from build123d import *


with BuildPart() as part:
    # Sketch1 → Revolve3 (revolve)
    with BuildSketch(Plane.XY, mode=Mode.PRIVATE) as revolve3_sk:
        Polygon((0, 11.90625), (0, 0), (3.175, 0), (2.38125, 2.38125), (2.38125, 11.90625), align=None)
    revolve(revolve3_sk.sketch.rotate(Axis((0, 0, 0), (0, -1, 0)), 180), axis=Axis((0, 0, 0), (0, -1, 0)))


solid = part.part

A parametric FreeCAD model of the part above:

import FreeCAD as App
import Part
import Sketcher

V = App.Vector
Q = App.Units.Quantity


def add_polygon(sketch, points):
    """Adds a closed chain of lines whose ends are joined by coincident constraints."""
    first, n = sketch.GeometryCount, len(points)
    for a, b in zip(points, points[1:] + points[:1]):
        sketch.addGeometry(Part.LineSegment(App.Vector(*a, 0), App.Vector(*b, 0)), False)
    for i in range(n):
        sketch.addConstraint(Sketcher.Constraint("Coincident", first + i, 2, first + (i + 1) % n, 1))

doc = App.newDocument("Part")
body = doc.addObject("PartDesign::Body", "Body")

sketch1 = doc.addObject("Sketcher::SketchObject", "Sketch")
body.addObject(sketch1)
sketch1.AttachmentSupport = (doc.XY_Plane, [""])
sketch1.MapMode = "FlatFace"
add_polygon(sketch1, [(0, 11.9), (0, 0), (3.2, 0), (2.4, 2.4), (2.4, 11.9)])
sketch1.addConstraint([
    Sketcher.Constraint("Vertical", 0),
    Sketcher.Constraint("Horizontal", 1),
    Sketcher.Constraint("Vertical", 3),
    Sketcher.Constraint("Horizontal", 4),
    Sketcher.Constraint("Coincident", 0, 2, -1, 1),
    Sketcher.Constraint("DistanceX", 1, 1, 1, 2, Q("0.125 in")),
    Sketcher.Constraint("DistanceX", 4, 2, 4, 1, Q("0.09375 in")),
    Sketcher.Constraint("DistanceY", 0, 2, 0, 1, Q("0.46875 in")),
    Sketcher.Constraint("DistanceY", 3, 1, 3, 2, Q("0.375 in")),
])
revolution = doc.addObject("PartDesign::Revolution", "Revolution")
body.addObject(revolution)
revolution.Profile = sketch1
revolution.ReferenceAxis = (sketch1, ["V_Axis"])
revolution.Angle = 360

doc.recompute()
